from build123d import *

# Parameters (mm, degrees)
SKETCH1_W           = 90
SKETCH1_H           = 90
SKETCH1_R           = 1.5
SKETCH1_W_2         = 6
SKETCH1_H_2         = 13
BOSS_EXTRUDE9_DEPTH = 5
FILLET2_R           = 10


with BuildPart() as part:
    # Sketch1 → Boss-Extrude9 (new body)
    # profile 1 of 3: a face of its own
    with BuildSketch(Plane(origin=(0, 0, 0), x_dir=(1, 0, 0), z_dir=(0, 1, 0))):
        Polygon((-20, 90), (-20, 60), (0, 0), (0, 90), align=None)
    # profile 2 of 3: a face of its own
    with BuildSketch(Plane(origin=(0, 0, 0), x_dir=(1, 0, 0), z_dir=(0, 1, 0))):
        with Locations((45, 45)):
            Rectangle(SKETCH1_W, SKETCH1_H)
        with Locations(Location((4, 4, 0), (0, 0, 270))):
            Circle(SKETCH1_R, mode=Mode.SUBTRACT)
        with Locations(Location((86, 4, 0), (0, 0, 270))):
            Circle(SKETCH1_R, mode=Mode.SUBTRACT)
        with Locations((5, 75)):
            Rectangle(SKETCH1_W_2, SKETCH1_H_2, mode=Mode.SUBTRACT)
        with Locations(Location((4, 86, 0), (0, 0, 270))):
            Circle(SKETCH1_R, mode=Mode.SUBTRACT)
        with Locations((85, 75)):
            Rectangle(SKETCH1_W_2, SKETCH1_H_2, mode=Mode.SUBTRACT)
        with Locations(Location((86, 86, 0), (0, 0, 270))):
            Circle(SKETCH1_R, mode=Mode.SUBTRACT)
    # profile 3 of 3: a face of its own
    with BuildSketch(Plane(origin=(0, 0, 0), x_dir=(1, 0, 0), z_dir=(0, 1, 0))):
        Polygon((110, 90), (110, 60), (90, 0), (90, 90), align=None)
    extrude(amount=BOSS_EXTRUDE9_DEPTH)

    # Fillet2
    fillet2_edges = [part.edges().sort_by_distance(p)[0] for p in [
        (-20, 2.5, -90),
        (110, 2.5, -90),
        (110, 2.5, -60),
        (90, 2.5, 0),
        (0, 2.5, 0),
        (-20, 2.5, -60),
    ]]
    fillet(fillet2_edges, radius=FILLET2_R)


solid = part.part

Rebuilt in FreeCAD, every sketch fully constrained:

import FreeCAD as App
import Part
import Sketcher
from FreeCAD import Vector
Q = App.Units.Quantity


def edges_at(feature, points):
    """Names of the edges that pass closest to the given points."""
    edges = feature.Shape.Edges
    near = lambda p: min(range(len(edges)), key=lambda i: edges[i].distToShape(Part.Vertex(*p))[0])
    return sorted({f"Edge{near(p) + 1}" for p in points})


def add_polygon(sketch, points):
    """Adds a closed chain of lines whose ends are joined by coincident constraints."""
    first, n = sketch.GeometryCount, len(points)
    for a, b in zip(points, points[1:] + points[:1]):
        sketch.addGeometry(Part.LineSegment(App.Vector(*a, 0), App.Vector(*b, 0)), False)
    for i in range(n):
        sketch.addConstraint(Sketcher.Constraint("Coincident", first + i, 2, first + (i + 1) % n, 1))

doc = App.newDocument("Part")
body = doc.addObject("PartDesign::Body", "Body")

sketch1 = body.newObject("Sketcher::SketchObject", "Sketch")
sketch1.AttachmentSupport = (doc.getObject("XZ_Plane"), [""])
sketch1.MapMode = "FlatFace"
add_polygon(sketch1, [(-20, -90), (-20, -60), (0, 0), (90, 0), (110, -60), (110, -90)])
sketch1.addGeometry(Part.Circle(Vector(86, -86, 0), Vector(0, 0, 1), 1.5), False)
sketch1.addGeometry(Part.Circle(Vector(4, -4, 0), Vector(0, 0, 1), 1.5), False)
sketch1.addGeometry(Part.Circle(Vector(86, -4, 0), Vector(0, 0, 1), 1.5), False)
add_polygon(sketch1, [(8, -68.5), (2, -68.5), (2, -81.5), (8, -81.5)])
sketch1.addGeometry(Part.Circle(Vector(4, -86, 0), Vector(0, 0, 1), 1.5), False)
add_polygon(sketch1, [(88, -68.5), (82, -68.5), (82, -81.5), (88, -81.5)])
sketch1.addConstraint([
    Sketcher.Constraint("Vertical", 0),
    Sketcher.Constraint("Horizontal", 2),
    Sketcher.Constraint("Vertical", 4),
    Sketcher.Constraint("Horizontal", 5),
    Sketcher.Constraint("Horizontal", 9),
    Sketcher.Constraint("Vertical", 10),
    Sketcher.Constraint("Horizontal", 11),
    Sketcher.Constraint("Vertical", 12),
    Sketcher.Constraint("Horizontal", 14),
    Sketcher.Constraint("Vertical", 15),
    Sketcher.Constraint("Horizontal", 16),
    Sketcher.Constraint("Vertical", 17),
    Sketcher.Constraint("Coincident", 1, 2, -1, 1),
    Sketcher.Constraint("Equal", 6, 7),
    Sketcher.Constraint("Equal", 7, 8),
    Sketcher.Constraint("Equal", 8, 13),
    Sketcher.Constraint("Horizontal", 7, 3, 8, 3),
    Sketcher.Constraint("Horizontal", 6, 3, 13, 3),
    Sketcher.Constraint("Horizontal", 0, 2, 3, 2),
    Sketcher.Constraint("Horizontal", 12, 2, 14, 2),
    Sketcher.Constraint("Horizontal", 11, 2, 15, 2),
    Sketcher.Constraint("Vertical", 6, 3, 8, 3),
    Sketcher.Constraint("Vertical", 7, 3, 13, 3),
    Sketcher.Constraint("Equal", 11, 14),
    Sketcher.Constraint("Equal", 1, 3),
    Sketcher.Constraint("Diameter", 6, Q("3 mm")),
    Sketcher.Constraint("DistanceX", 2, 1, 2, 2, Q("90 mm")),
    Sketcher.Constraint("DistanceX", 5, 2, 5, 1, Q("130 mm")),
    Sketcher.Constraint("DistanceX", 9, 2, 9, 1, Q("6 mm")),
    Sketcher.Constraint("DistanceY", 0, 1, 0, 2, Q("30 mm")),
    Sketcher.Constraint("DistanceY", 10, 2, 10, 1, Q("13 mm")),
    Sketcher.Constraint("DistanceX", -1, 1, 6, 3, Q("86 mm")),
    Sketcher.Constraint("DistanceY", 6, 3, -1, 1, Q("86 mm")),
    Sketcher.Constraint("DistanceX", -1, 1, 7, 3, Q("4 mm")),
    Sketcher.Constraint("DistanceY", 7, 3, -1, 1, Q("4 mm")),
    Sketcher.Constraint("DistanceY", 0, 2, -1, 1, Q("60 mm")),
    Sketcher.Constraint("DistanceX", -1, 1, 9, 2, Q("2 mm")),
    Sketcher.Constraint("DistanceX", -1, 1, 14, 2, Q("82 mm")),
    Sketcher.Constraint("DistanceY", 9, 2, -1, 1, Q("68.5 mm")),
])
pad1 = body.newObject("PartDesign::Pad", "Pad")
pad1.Profile = sketch1
pad1.Length = 5
pad1.Reversed = True
doc.recompute()

fillet = body.newObject("PartDesign::Fillet", "Fillet")
fillet.Base = (pad1, edges_at(pad1, [
    (-20, 2.5, -90),
    (110, 2.5, -90),
    (110, 2.5, -60),
    (90, 2.5, 0),
    (0, 2.5, 0),
    (-20, 2.5, -60),
]))
fillet.Radius = 10

doc.recompute()
